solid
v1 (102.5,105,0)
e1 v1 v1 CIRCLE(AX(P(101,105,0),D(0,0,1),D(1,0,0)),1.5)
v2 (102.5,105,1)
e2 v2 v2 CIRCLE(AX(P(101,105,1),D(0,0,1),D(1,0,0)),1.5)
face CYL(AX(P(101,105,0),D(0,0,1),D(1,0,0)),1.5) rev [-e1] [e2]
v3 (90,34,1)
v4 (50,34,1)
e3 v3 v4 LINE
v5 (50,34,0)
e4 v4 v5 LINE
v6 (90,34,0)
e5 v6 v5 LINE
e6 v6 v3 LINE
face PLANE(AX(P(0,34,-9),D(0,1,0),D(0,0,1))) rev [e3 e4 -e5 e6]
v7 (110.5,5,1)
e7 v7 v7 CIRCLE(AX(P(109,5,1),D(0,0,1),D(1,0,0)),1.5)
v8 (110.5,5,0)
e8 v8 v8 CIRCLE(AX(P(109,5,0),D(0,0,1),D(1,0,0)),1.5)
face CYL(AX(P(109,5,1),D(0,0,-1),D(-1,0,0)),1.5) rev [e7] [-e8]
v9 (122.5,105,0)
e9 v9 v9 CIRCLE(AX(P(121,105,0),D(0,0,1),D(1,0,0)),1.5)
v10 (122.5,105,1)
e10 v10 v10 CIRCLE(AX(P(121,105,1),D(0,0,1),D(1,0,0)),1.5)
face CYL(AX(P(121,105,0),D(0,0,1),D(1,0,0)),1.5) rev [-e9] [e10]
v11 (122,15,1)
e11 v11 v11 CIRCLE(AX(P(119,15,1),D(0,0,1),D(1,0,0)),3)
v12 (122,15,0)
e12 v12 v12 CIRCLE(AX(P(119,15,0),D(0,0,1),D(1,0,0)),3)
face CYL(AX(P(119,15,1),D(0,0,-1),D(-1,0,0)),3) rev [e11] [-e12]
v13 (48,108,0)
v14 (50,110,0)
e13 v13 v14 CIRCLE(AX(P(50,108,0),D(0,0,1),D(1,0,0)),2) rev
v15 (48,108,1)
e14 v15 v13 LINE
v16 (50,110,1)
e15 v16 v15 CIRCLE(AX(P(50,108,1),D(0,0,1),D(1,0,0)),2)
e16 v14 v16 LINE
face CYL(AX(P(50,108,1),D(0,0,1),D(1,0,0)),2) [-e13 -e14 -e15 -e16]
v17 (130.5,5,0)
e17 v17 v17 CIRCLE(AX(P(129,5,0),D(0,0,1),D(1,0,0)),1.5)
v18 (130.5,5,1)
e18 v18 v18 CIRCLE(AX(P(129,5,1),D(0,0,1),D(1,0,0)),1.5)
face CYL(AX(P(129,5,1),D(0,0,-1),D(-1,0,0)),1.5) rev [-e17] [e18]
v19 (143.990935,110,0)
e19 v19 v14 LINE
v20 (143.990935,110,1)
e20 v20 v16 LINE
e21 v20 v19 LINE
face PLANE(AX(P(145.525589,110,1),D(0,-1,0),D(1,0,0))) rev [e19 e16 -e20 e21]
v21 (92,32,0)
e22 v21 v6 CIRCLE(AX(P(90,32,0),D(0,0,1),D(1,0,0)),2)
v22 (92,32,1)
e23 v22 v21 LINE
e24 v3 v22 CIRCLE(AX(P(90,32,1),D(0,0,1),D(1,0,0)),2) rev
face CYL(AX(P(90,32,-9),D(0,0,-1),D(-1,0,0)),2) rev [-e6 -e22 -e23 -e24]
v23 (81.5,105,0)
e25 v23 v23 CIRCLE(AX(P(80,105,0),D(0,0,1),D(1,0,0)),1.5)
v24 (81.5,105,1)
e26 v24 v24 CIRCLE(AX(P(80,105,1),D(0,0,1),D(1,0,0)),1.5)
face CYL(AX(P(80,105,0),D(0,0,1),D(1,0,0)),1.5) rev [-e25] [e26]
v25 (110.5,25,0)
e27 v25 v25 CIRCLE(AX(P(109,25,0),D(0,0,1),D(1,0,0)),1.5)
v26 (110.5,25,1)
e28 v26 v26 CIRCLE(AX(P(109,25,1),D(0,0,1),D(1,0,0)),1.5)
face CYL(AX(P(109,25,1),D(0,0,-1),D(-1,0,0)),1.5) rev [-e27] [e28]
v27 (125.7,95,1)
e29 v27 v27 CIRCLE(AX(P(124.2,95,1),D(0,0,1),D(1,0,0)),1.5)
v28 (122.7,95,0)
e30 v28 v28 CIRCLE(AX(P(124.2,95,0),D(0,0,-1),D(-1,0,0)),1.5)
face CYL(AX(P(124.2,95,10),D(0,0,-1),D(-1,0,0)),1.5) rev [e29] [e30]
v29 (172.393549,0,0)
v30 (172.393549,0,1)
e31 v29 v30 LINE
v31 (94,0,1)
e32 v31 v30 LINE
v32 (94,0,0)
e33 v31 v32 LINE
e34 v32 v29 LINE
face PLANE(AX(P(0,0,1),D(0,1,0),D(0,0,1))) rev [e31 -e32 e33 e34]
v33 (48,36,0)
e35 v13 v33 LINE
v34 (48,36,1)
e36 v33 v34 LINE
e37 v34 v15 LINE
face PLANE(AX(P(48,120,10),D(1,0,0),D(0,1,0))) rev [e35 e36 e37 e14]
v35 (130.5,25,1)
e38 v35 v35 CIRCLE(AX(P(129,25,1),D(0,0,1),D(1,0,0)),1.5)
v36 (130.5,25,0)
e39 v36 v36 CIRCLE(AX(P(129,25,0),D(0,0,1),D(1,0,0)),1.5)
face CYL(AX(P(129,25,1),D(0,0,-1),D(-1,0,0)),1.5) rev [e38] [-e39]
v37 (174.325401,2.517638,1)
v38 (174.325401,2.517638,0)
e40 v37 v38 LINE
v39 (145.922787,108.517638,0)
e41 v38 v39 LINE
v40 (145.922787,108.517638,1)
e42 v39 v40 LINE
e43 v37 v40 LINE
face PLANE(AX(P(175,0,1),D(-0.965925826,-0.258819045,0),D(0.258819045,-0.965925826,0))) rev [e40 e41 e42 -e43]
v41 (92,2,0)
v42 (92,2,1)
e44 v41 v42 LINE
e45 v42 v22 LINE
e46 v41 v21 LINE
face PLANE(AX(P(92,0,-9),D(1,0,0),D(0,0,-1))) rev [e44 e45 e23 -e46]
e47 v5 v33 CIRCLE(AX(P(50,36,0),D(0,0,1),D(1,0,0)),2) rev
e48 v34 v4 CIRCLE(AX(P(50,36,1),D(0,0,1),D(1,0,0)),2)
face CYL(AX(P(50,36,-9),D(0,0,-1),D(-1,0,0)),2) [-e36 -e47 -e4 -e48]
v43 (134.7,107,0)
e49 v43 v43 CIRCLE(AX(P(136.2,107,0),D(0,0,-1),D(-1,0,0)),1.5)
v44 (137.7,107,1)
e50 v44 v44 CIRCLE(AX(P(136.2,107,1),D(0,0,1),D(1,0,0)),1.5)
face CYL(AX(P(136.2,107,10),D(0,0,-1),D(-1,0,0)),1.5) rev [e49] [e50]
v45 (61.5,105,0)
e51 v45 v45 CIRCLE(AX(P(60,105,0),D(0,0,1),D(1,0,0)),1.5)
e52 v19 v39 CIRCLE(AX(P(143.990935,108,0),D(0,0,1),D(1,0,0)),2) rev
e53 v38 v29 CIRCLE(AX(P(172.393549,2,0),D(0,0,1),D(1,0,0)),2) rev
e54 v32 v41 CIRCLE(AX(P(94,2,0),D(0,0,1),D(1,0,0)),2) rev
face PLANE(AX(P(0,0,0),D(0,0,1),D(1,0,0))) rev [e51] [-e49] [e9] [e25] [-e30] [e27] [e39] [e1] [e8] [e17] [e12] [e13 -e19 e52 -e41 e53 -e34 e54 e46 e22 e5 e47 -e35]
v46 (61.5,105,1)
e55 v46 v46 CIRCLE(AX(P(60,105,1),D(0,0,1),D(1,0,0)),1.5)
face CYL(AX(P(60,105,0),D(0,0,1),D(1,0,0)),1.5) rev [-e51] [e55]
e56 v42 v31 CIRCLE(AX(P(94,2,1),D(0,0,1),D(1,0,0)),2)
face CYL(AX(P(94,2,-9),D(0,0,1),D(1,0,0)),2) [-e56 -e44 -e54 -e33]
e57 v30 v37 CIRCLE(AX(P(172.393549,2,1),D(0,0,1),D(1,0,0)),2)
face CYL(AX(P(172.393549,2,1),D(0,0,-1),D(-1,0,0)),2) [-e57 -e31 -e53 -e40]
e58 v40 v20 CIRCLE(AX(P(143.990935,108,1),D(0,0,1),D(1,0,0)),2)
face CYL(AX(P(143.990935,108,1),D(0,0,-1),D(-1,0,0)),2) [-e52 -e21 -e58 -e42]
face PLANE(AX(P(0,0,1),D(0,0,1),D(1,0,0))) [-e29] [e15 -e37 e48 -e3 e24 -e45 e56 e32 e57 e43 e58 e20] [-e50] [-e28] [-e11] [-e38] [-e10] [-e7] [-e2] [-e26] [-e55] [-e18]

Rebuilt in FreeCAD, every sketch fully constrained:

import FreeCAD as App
import Part
import Sketcher

V = App.Vector
Q = App.Units.Quantity


def edges_at(feature, points):
    """Names of the edges that pass closest to the given points."""
    edges = feature.Shape.Edges
    near = lambda p: min(range(len(edges)), key=lambda i: edges[i].distToShape(Part.Vertex(*p))[0])
    return sorted({f"Edge{near(p) + 1}" for p in points})

doc = App.newDocument("Part")
body = doc.addObject("PartDesign::Body", "Body")

# Sketch on XY plane
sketch1 = body.newObject("Sketcher::SketchObject", "Sketch")
sketch1.AttachmentSupport = (doc.getObject("XY_Plane"), [""])
sketch1.MapMode = "FlatFace"
sketch1.addGeometry([
    Part.LineSegment(V(0, 0, 0), V(175, 0, 0)),  # 0
    Part.LineSegment(V(175, 0, 0), V(145.5, 110, 0)),  # 1
    Part.LineSegment(V(145.5, 110, 0), V(0, 110, 0)),  # 2
    Part.LineSegment(V(0, 110, 0), V(0, 0, 0)),  # 3
    Part.Circle(V(109, 5, 0), V(0, 0, 1), 1.5),  # 4
    Part.Circle(V(129, 5, 0), V(0, 0, 1), 1.5),  # 5
    Part.Circle(V(109, 25, 0), V(0, 0, 1), 1.5),  # 6
    Part.Circle(V(119, 15, 0), V(0, 0, 1), 3),  # 7
    Part.Circle(V(129, 25, 0), V(0, 0, 1), 1.5),  # 8
], False)
sketch1.addConstraint([
    Sketcher.Constraint("Coincident", 0, 2, 1, 1),
    Sketcher.Constraint("Coincident", 1, 2, 2, 1),
    Sketcher.Constraint("Coincident", 2, 2, 3, 1),
    Sketcher.Constraint("Coincident", 3, 2, 0, 1),
    Sketcher.Constraint("Horizontal", 0),
    Sketcher.Constraint("Horizontal", 2),
    Sketcher.Constraint("Vertical", 3),
    Sketcher.Constraint("Coincident", 3, 2, -1, 1),
    Sketcher.Constraint("Equal", 4, 5),
    Sketcher.Constraint("Equal", 5, 6),
    Sketcher.Constraint("Equal", 6, 8),
    Sketcher.Constraint("Horizontal", 4, 3, 5, 3),
    Sketcher.Constraint("Horizontal", 6, 3, 8, 3),
    Sketcher.Constraint("Vertical", 4, 3, 6, 3),
    Sketcher.Constraint("Vertical", 5, 3, 8, 3),
    Sketcher.Constraint("Diameter", 4, Q("3 mm")),
    Sketcher.Constraint("Diameter", 7, Q("6 mm")),
    Sketcher.Constraint("DistanceX", 0, 1, 0, 2, Q("175 mm")),
    Sketcher.Constraint("DistanceY", 3, 2, 3, 1, Q("110 mm")),
    Sketcher.Constraint("Angle", 1, Q("105 deg")),
    Sketcher.Constraint("DistanceX", -1, 1, 4, 3, Q("109 mm")),
    Sketcher.Constraint("DistanceY", -1, 1, 4, 3, Q("5 mm")),
    Sketcher.Constraint("DistanceX", -1, 1, 5, 3, Q("129 mm")),
    Sketcher.Constraint("DistanceY", -1, 1, 6, 3, Q("25 mm")),
    Sketcher.Constraint("DistanceX", -1, 1, 7, 3, Q("119 mm")),
    Sketcher.Constraint("DistanceY", -1, 1, 7, 3, Q("15 mm")),
])
pad1 = body.newObject("PartDesign::Pad", "Pad")
pad1.Profile = sketch1
pad1.Length = 1

# Sketch on XY plane
sketch2 = body.newObject("Sketcher::SketchObject", "Sketch001")
sketch2.AttachmentSupport = (doc.getObject("XY_Plane"), [""])
sketch2.MapMode = "FlatFace"
sketch2.addGeometry([
    Part.Circle(V(22, 101, 0), V(0, 0, 1), 1.5),
    Part.Circle(V(22, 81, 0), V(0, 0, 1), 1.5),
    Part.Circle(V(22, 60, 0), V(0, 0, 1), 1.5),
    Part.Circle(V(22, 40, 0), V(0, 0, 1), 1.5),
], False)
sketch2.addConstraint([
    Sketcher.Constraint("Equal", 0, 1),
    Sketcher.Constraint("Equal", 1, 2),
    Sketcher.Constraint("Equal", 2, 3),
    Sketcher.Constraint("Vertical", 0, 3, 1, 3),
    Sketcher.Constraint("Vertical", 1, 3, 2, 3),
    Sketcher.Constraint("Vertical", 2, 3, 3, 3),
    Sketcher.Constraint("Diameter", 0, Q("3 mm")),
    Sketcher.Constraint("DistanceX", -1, 1, 0, 3, Q("22 mm")),
    Sketcher.Constraint("DistanceY", -1, 1, 0, 3, Q("101 mm")),
    Sketcher.Constraint("DistanceY", -1, 1, 1, 3, Q("81 mm")),
    Sketcher.Constraint("DistanceY", -1, 1, 2, 3, Q("60 mm")),
    Sketcher.Constraint("DistanceY", -1, 1, 3, 3, Q("40 mm")),
])
pocket1 = body.newObject("PartDesign::Pocket", "Pocket")
pocket1.Profile = sketch2
pocket1.Length = 4
pocket1.Reversed = True

# Sketch on XY plane
sketch3 = body.newObject("Sketcher::SketchObject", "Sketch002")
sketch3.AttachmentSupport = (doc.getObject("XY_Plane"), [""])
sketch3.MapMode = "FlatFace"
sketch3.addGeometry([
    Part.Circle(V(136.2, 107, 0), V(0, 0, 1), 1.5),
    Part.Circle(V(124.2, 95, 0), V(0, 0, 1), 1.5),
], False)
sketch3.addConstraint([
    Sketcher.Constraint("Equal", 0, 1),
    Sketcher.Constraint("Diameter", 0, Q("3 mm")),
    Sketcher.Constraint("DistanceY", -1, 1, 0, 3, Q("107 mm")),
    Sketcher.Constraint("DistanceY", -1, 1, 1, 3, Q("95 mm")),
    Sketcher.Constraint("DistanceX", 1, 3, 0, 3, Q("12 mm")),
    Sketcher.Constraint("DistanceX", -1, 1, 0, 3, Q("136.2 mm")),
])
pocket2 = body.newObject("PartDesign::Pocket", "Pocket001")
pocket2.Profile = sketch3
pocket2.Length = 10
pocket2.Reversed = True

# Sketch on XY plane
sketch4 = body.newObject("Sketcher::SketchObject", "Sketch003")
sketch4.AttachmentSupport = (doc.getObject("XY_Plane"), [""])
sketch4.MapMode = "FlatFace"
sketch4.AttachmentOffset = App.Placement(V(0, 0, 1), App.Rotation())
sketch4.addGeometry([
    Part.LineSegment(V(0, 34, 0), V(0, 0, 0)),
    Part.LineSegment(V(0, 0, 0), V(53, 0, 0)),
    Part.LineSegment(V(53, 0, 0), V(53, 34, 0)),
    Part.LineSegment(V(53, 34, 0), V(0, 34, 0)),
], False)
sketch4.addConstraint([
    Sketcher.Constraint("Coincident", 0, 2, 1, 1),
    Sketcher.Constraint("Coincident", 1, 2, 2, 1),
    Sketcher.Constraint("Coincident", 2, 2, 3, 1),
    Sketcher.Constraint("Coincident", 3, 2, 0, 1),
    Sketcher.Constraint("Vertical", 0),
    Sketcher.Constraint("Horizontal", 1),
    Sketcher.Constraint("Vertical", 2),
    Sketcher.Constraint("Horizontal", 3),
    Sketcher.Constraint("Coincident", 0, 2, -1, 1),
    Sketcher.Constraint("DistanceX", 1, 1, 1, 2, Q("53 mm")),
    Sketcher.Constraint("DistanceY", 0, 2, 0, 1, Q("34 mm")),
])
pocket3 = body.newObject("PartDesign::Pocket", "Pocket002")
pocket3.Profile = sketch4
pocket3.Length = 10

# Sketch on XY plane
sketch5 = body.newObject("Sketcher::SketchObject", "Sketch004")
sketch5.AttachmentSupport = (doc.getObject("XY_Plane"), [""])
sketch5.MapMode = "FlatFace"
sketch5.AttachmentOffset = App.Placement(V(0, 0, 1), App.Rotation())
sketch5.addGeometry([
    Part.LineSegment(V(53, 34, 0), V(53, 0, 0)),
    Part.LineSegment(V(53, 0, 0), V(92, 0, 0)),
    Part.LineSegment(V(92, 0, 0), V(92, 34, 0)),
    Part.LineSegment(V(92, 34, 0), V(53, 34, 0)),
], False)
sketch5.addConstraint([
    Sketcher.Constraint("Coincident", 0, 2, 1, 1),
    Sketcher.Constraint("Coincident", 1, 2, 2, 1),
    Sketcher.Constraint("Coincident", 2, 2, 3, 1),
    Sketcher.Constraint("Coincident", 3, 2, 0, 1),
    Sketcher.Constraint("Vertical", 0),
    Sketcher.Constraint("Horizontal", 1),
    Sketcher.Constraint("Vertical", 2),
    Sketcher.Constraint("Horizontal", 3),
    Sketcher.Constraint("PointOnObject", 0, 2, -1),
    Sketcher.Constraint("DistanceX", 1, 1, 1, 2, Q("39 mm")),
    Sketcher.Constraint("DistanceY", 0, 2, 0, 1, Q("34 mm")),
    Sketcher.Constraint("DistanceX", -1, 1, 0, 2, Q("53 mm")),
])
pocket4 = body.newObject("PartDesign::Pocket", "Pocket003")
pocket4.Profile = sketch5
pocket4.Length = 10

# Sketch on XY plane
sketch6 = body.newObject("Sketcher::SketchObject", "Sketch005")
sketch6.AttachmentSupport = (doc.getObject("XY_Plane"), [""])
sketch6.MapMode = "FlatFace"
sketch6.AttachmentOffset = App.Placement(V(0, 0, 1), App.Rotation())
sketch6.addGeometry(Part.Circle(V(37, 94, 0), V(0, 0, 1), 10), False)
sketch6.addConstraint([
    Sketcher.Constraint("Diameter", 0, Q("20 mm")),
    Sketcher.Constraint("DistanceX", -1, 1, 0, 3, Q("37 mm")),
    Sketcher.Constraint("DistanceY", -1, 1, 0, 3, Q("94 mm")),
])
pocket5 = body.newObject("PartDesign::Pocket", "Pocket004")
pocket5.Profile = sketch6
pocket5.Length = 10

# Sketch on XY plane
sketch7 = body.newObject("Sketcher::SketchObject", "Sketch006")
sketch7.AttachmentSupport = (doc.getObject("XY_Plane"), [""])
sketch7.MapMode = "FlatFace"
sketch7.AttachmentOffset = App.Placement(V(0, 0, 1), App.Rotation())
sketch7.addGeometry([
    Part.Circle(V(121, 105, 0), V(0, 0, 1), 1.5),  # 0
    Part.Circle(V(101, 105, 0), V(0, 0, 1), 1.5),  # 1
    Part.Circle(V(80, 105, 0), V(0, 0, 1), 1.5),  # 2
    Part.Circle(V(60, 105, 0), V(0, 0, 1), 1.5),  # 3
    Part.Circle(V(45, 105, 0), V(0, 0, 1), 1.5),  # 4
    Part.Circle(V(25, 105, 0), V(0, 0, 1), 1.5),  # 5
], False)
sketch7.addConstraint([
    Sketcher.Constraint("Equal", 0, 1),
    Sketcher.Constraint("Equal", 1, 2),
    Sketcher.Constraint("Equal", 2, 3),
    Sketcher.Constraint("Equal", 3, 4),
    Sketcher.Constraint("Equal", 4, 5),
    Sketcher.Constraint("Horizontal", 0, 3, 1, 3),
    Sketcher.Constraint("Horizontal", 1, 3, 2, 3),
    Sketcher.Constraint("Horizontal", 2, 3, 3, 3),
    Sketcher.Constraint("Horizontal", 3, 3, 4, 3),
    Sketcher.Constraint("Horizontal", 4, 3, 5, 3),
    Sketcher.Constraint("Diameter", 0, Q("3 mm")),
    Sketcher.Constraint("DistanceX", -1, 1, 0, 3, Q("121 mm")),
    Sketcher.Constraint("DistanceY", -1, 1, 0, 3, Q("105 mm")),
    Sketcher.Constraint("DistanceX", -1, 1, 1, 3, Q("101 mm")),
    Sketcher.Constraint("DistanceX", -1, 1, 2, 3, Q("80 mm")),
    Sketcher.Constraint("DistanceX", -1, 1, 3, 3, Q("60 mm")),
    Sketcher.Constraint("DistanceX", -1, 1, 4, 3, Q("45 mm")),
    Sketcher.Constraint("DistanceX", -1, 1, 5, 3, Q("25 mm")),
])
pocket6 = body.newObject("PartDesign::Pocket", "Pocket005")
pocket6.Profile = sketch7
pocket6.Length = 1
doc.recompute()

fillet = body.newObject("PartDesign::Fillet", "Fillet")
fillet.Base = (pocket6, edges_at(pocket6, [
    (0, 34, 0.5),
    (0, 110, 0.5),
    (145.526, 110, 0.5),
    (175, 0, 0.5),
    (92, 34, 0.5),
    (92, 0, 0.5),
]))
fillet.Radius = 2

# Sketch on XY plane
sketch8 = body.newObject("Sketcher::SketchObject", "Sketch007")
sketch8.AttachmentSupport = (doc.getObject("XY_Plane"), [""])
sketch8.MapMode = "FlatFace"
sketch8.AttachmentOffset = App.Placement(V(0, 0, 1), App.Rotation())
sketch8.addGeometry(Part.Circle(V(37, 94, 0), V(0, 0, 1), 10), False)
sketch8.addConstraint([
    Sketcher.Constraint("Diameter", 0, Q("20 mm")),
    Sketcher.Constraint("DistanceX", -1, 1, 0, 3, Q("37 mm")),
    Sketcher.Constraint("DistanceY", -1, 1, 0, 3, Q("94 mm")),
])
pad2 = body.newObject("PartDesign::Pad", "Pad001")
pad2.Profile = sketch8
pad2.Length = 1
pad2.Reversed = True

# Sketch on XY plane
sketch9 = body.newObject("Sketcher::SketchObject", "Sketch008")
sketch9.AttachmentSupport = (doc.getObject("XY_Plane"), [""])
sketch9.MapMode = "FlatFace"
sketch9.addGeometry([
    Part.LineSegment(V(48, 120, 0), V(48, 34, 0)),
    Part.LineSegment(V(48, 34, 0), V(0, 34, 0)),
    Part.LineSegment(V(0, 34, 0), V(0, 120, 0)),
    Part.LineSegment(V(0, 120, 0), V(48, 120, 0)),
], False)
sketch9.addConstraint([
    Sketcher.Constraint("Coincident", 0, 2, 1, 1),
    Sketcher.Constraint("Coincident", 1, 2, 2, 1),
    Sketcher.Constraint("Coincident", 2, 2, 3, 1),
    Sketcher.Constraint("Coincident", 3, 2, 0, 1),
    Sketcher.Constraint("Vertical", 0),
    Sketcher.Constraint("Horizontal", 1),
    Sketcher.Constraint("Vertical", 2),
    Sketcher.Constraint("Horizontal", 3),
    Sketcher.Constraint("PointOnObject", 1, 2, -2),
    Sketcher.Constraint("DistanceX", 1, 2, 1, 1, Q("48 mm")),
    Sketcher.Constraint("DistanceY", 0, 2, 0, 1, Q("86 mm")),
    Sketcher.Constraint("DistanceY", -1, 1, 0, 2, Q("34 mm")),
])
pocket7 = body.newObject("PartDesign::Pocket", "Pocket006")
pocket7.Profile = sketch9
pocket7.Length = 10
pocket7.Reversed = True
doc.recompute()

fillet2 = body.newObject("PartDesign::Fillet", "Fillet001")
fillet2.Base = (pocket7, edges_at(pocket7, [(48, 34, 0.5), (48, 110, 0.5)]))
fillet2.Radius = 2

doc.recompute()
